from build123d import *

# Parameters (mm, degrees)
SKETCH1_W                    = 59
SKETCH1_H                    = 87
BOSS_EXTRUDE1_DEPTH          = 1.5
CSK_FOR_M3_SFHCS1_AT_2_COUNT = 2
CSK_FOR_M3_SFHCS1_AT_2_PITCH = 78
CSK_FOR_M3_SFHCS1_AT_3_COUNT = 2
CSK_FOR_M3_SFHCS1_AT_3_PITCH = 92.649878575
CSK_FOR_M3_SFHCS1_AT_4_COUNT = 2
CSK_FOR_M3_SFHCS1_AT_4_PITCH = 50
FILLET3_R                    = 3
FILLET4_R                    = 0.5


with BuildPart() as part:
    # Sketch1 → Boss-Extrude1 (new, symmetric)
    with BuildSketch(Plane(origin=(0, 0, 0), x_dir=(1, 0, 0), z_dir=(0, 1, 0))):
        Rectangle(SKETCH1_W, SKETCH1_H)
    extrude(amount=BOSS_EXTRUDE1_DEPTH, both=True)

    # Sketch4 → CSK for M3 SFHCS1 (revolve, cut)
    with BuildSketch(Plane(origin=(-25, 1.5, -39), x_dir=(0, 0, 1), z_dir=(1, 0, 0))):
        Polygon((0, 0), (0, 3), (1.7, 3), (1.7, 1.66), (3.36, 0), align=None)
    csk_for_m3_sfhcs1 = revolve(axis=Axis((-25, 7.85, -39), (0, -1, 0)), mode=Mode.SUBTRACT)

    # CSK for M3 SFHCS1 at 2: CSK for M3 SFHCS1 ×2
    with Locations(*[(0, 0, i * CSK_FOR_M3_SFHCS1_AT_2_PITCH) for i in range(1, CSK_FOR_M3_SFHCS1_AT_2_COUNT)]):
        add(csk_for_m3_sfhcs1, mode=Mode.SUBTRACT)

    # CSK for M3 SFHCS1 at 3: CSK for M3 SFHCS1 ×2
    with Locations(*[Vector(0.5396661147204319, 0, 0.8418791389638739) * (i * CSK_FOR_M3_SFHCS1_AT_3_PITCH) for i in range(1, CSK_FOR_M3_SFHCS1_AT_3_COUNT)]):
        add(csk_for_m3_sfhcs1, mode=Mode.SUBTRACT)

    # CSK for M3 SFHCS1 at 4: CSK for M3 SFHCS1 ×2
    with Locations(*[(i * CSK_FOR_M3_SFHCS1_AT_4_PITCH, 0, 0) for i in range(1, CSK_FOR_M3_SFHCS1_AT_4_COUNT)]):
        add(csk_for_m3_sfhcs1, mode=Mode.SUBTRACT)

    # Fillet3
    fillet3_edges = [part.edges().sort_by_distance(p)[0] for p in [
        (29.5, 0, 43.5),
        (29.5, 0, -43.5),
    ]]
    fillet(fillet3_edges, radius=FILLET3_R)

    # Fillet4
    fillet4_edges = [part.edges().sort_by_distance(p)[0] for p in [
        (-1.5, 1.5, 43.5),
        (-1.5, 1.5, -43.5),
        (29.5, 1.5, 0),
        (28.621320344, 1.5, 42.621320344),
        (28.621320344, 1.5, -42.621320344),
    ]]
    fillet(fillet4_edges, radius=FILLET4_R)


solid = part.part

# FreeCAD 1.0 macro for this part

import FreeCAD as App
import Part
import Sketcher
Q = App.Units.Quantity


def edges_at(feature, points):
    """Names of the edges that pass closest to the given points."""
    edges = feature.Shape.Edges
    near = lambda p: min(range(len(edges)), key=lambda i: edges[i].distToShape(Part.Vertex(*p))[0])
    return sorted({f"Edge{near(p) + 1}" for p in points})

doc = App.newDocument("Part")
body = doc.addObject("PartDesign::Body", "Body")

sketch1 = body.newObject("Sketcher::SketchObject", "Sketch")
sketch1.AttachmentSupport = (doc.getObject("XZ_Plane"), [""])
sketch1.MapMode = "FlatFace"
sketch1.addGeometry([
    Part.LineSegment(App.Vector(-30, -44, 0), App.Vector(-30, 44, 0)),
    Part.LineSegment(App.Vector(-30, 44, 0), App.Vector(30, 44, 0)),
    Part.LineSegment(App.Vector(30, 44, 0), App.Vector(30, -44, 0)),
    Part.LineSegment(App.Vector(30, -44, 0), App.Vector(-30, -44, 0)),
], False)
sketch1.addConstraint([
    Sketcher.Constraint("Coincident", 0, 2, 1, 1),
    Sketcher.Constraint("Coincident", 1, 2, 2, 1),
    Sketcher.Constraint("Coincident", 2, 2, 3, 1),
    Sketcher.Constraint("Coincident", 3, 2, 0, 1),
    Sketcher.Constraint("Vertical", 0),
    Sketcher.Constraint("Horizontal", 1),
    Sketcher.Constraint("Vertical", 2),
    Sketcher.Constraint("Horizontal", 3),
    Sketcher.Constraint("Symmetric", 0, 2, 2, 2, -1, 1),
    Sketcher.Constraint("DistanceX", 1, 1, 1, 2, 59.0),
    Sketcher.Constraint("DistanceY", 0, 1, 0, 2, 87.0),
])
pad1 = body.newObject("PartDesign::Pad", "Pad")
pad1.Profile = sketch1
pad1.Length = 3
pad1.Midplane = True

sketch2 = body.newObject("Sketcher::SketchObject", "Sketch001")
sketch2.AttachmentSupport = (doc.getObject("YZ_Plane"), [""])
sketch2.MapMode = "FlatFace"
sketch2.AttachmentOffset = App.Placement(App.Vector(0, 0, -25), App.Rotation())
sketch2.addGeometry([
    Part.LineSegment(App.Vector(-1.5, -39, 0), App.Vector(1.5, -39, 0)),
    Part.LineSegment(App.Vector(1.5, -39, 0), App.Vector(1.5, -35.6, 0)),
    Part.LineSegment(App.Vector(1.5, -35.6, 0), App.Vector(-0.2, -37.3, 0)),
    Part.LineSegment(App.Vector(-0.2, -37.3, 0), App.Vector(-1.5, -37.3, 0)),
    Part.LineSegment(App.Vector(-1.5, -37.3, 0), App.Vector(-1.5, -39, 0)),
], False)
sketch2.addGeometry(Part.LineSegment(App.Vector(1.5, -39, 0), App.Vector(-1.5, -39, 0)), True)
sketch2.addConstraint([
    Sketcher.Constraint("Coincident", 0, 2, 1, 1),
    Sketcher.Constraint("Coincident", 1, 2, 2, 1),
    Sketcher.Constraint("Coincident", 2, 2, 3, 1),
    Sketcher.Constraint("Coincident", 3, 2, 4, 1),
    Sketcher.Constraint("Coincident", 4, 2, 0, 1),
    Sketcher.Constraint("Horizontal", 0),
    Sketcher.Constraint("Vertical", 1),
    Sketcher.Constraint("Horizontal", 3),
    Sketcher.Constraint("Vertical", 4),
    Sketcher.Constraint("Horizontal", 5),
    Sketcher.Constraint("Coincident", 5, 1, 0, 2),
    Sketcher.Constraint("Vertical", 3, 2, 5, 2),
    Sketcher.Constraint("DistanceX", 0, 1, 0, 2, 3.0),
    Sketcher.Constraint("Angle", 2, Q("-135 deg")),
    Sketcher.Constraint("DistanceY", 4, 2, 4, 1, 1.7),
    Sketcher.Constraint("DistanceY", 0, 2, -1, 1, 39.0),
    Sketcher.Constraint("DistanceX", 3, 2, 3, 1, 1.34),
    Sketcher.Constraint("DistanceX", -1, 1, 0, 2, 1.5),
])
groove = body.newObject("PartDesign::Groove", "Groove")
groove.Profile = sketch2
groove.ReferenceAxis = (sketch2, ["Axis0"])
groove.Angle = 360
doc.recompute()

linearpattern = body.newObject("PartDesign::LinearPattern", "LinearPattern")
linearpattern.Originals = [groove]
linearpattern.Direction = (doc.getObject("Z_Axis"), [""])
linearpattern.Mode = "offset"
linearpattern.Offset = 78
linearpattern.Occurrences = 2
body.Tip = linearpattern
doc.recompute()

datumline = body.newObject("PartDesign::Line", "DatumLine")
datumline.Placement = App.Placement(App.Vector(0, 0, 0), App.Rotation(App.Vector(0, 0, 1), App.Vector(0.539666115, 0, 0.841879139)))
linearpattern2 = body.newObject("PartDesign::LinearPattern", "LinearPattern001")
linearpattern2.Originals = [groove]
linearpattern2.Direction = (datumline, [""])
linearpattern2.Mode = "offset"
linearpattern2.Offset = 92.649879
linearpattern2.Occurrences = 2
body.Tip = linearpattern2
doc.recompute()

linearpattern3 = body.newObject("PartDesign::LinearPattern", "LinearPattern002")
linearpattern3.Originals = [groove]
linearpattern3.Direction = (doc.getObject("X_Axis"), [""])
linearpattern3.Mode = "offset"
linearpattern3.Offset = 50
linearpattern3.Occurrences = 2
body.Tip = linearpattern3
doc.recompute()

fillet = body.newObject("PartDesign::Fillet", "Fillet")
fillet.Base = (linearpattern3, edges_at(linearpattern3, [(29.5, 0, 43.5), (29.5, 0, -43.5)]))
fillet.Radius = 3
doc.recompute()

fillet2 = body.newObject("PartDesign::Fillet", "Fillet001")
fillet2.Base = (fillet, edges_at(fillet, [
    (-1.5, 1.5, 43.5),
    (-1.5, 1.5, -43.5),
    (29.5, 1.5, 0),
    (28.621, 1.5, 42.621),
    (28.621, 1.5, -42.621),
]))
fillet2.Radius = 0.5

doc.recompute()
